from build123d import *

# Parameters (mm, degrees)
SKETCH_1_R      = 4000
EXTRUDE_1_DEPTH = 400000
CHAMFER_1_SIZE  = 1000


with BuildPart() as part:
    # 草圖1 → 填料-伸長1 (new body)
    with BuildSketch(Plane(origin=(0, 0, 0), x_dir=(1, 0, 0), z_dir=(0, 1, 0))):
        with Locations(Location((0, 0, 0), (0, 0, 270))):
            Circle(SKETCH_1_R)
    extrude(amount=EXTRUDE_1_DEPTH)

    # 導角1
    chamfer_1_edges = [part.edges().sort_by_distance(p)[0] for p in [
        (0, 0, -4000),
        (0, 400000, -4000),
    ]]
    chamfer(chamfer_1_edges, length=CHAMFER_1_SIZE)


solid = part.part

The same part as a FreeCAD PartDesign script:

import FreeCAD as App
import Part
import Sketcher

V = App.Vector
Q = App.Units.Quantity


def edges_at(feature, points):
    """Names of the edges that pass closest to the given points."""
    edges = feature.Shape.Edges
    near = lambda p: min(range(len(edges)), key=lambda i: edges[i].distToShape(Part.Vertex(*p))[0])
    return sorted({f"Edge{near(p) + 1}" for p in points})

doc = App.newDocument("Part")
params = doc.addObject("Spreadsheet::Sheet", "Params")
for row, (alias, value) in enumerate([
    ("sketch1_diameter", "8000 mm"),
    ("pad1_length", "400000 mm"),
    ("chamfer_size", "1000 mm"),
], start=1):
    params.set(f"A{row}", alias)
    params.set(f"B{row}", "=" + value)
    params.setAlias(f"B{row}", alias)

body = doc.addObject("PartDesign::Body", "Body")

# Sketch on XZ plane
sketch1 = body.newObject("Sketcher::SketchObject", "Sketch")
sketch1.AttachmentSupport = (doc.getObject("XZ_Plane"), [""])
sketch1.MapMode = "FlatFace"
sketch1.addGeometry(Part.Circle(V(0, 0, 0), V(0, 0, 1), 4000), False)
sketch1.addConstraint([
    Sketcher.Constraint("Coincident", 0, 3, -1, 1),
    Sketcher.Constraint("Diameter", 0, Q("8000 mm")),
])
sketch1.setExpression("Constraints[1]", "Params.sketch1_diameter")
pad1 = body.newObject("PartDesign::Pad", "Pad")
pad1.Profile = sketch1
pad1.setExpression("Length", "Params.pad1_length")
pad1.Reversed = True
doc.recompute()

chamfer = body.newObject("PartDesign::Chamfer", "Chamfer")
chamfer.Base = (pad1, edges_at(pad1, [(0, 0, -4000), (0, 400000, -4000)]))
chamfer.setExpression("Size", "Params.chamfer_size")

doc.recompute()
